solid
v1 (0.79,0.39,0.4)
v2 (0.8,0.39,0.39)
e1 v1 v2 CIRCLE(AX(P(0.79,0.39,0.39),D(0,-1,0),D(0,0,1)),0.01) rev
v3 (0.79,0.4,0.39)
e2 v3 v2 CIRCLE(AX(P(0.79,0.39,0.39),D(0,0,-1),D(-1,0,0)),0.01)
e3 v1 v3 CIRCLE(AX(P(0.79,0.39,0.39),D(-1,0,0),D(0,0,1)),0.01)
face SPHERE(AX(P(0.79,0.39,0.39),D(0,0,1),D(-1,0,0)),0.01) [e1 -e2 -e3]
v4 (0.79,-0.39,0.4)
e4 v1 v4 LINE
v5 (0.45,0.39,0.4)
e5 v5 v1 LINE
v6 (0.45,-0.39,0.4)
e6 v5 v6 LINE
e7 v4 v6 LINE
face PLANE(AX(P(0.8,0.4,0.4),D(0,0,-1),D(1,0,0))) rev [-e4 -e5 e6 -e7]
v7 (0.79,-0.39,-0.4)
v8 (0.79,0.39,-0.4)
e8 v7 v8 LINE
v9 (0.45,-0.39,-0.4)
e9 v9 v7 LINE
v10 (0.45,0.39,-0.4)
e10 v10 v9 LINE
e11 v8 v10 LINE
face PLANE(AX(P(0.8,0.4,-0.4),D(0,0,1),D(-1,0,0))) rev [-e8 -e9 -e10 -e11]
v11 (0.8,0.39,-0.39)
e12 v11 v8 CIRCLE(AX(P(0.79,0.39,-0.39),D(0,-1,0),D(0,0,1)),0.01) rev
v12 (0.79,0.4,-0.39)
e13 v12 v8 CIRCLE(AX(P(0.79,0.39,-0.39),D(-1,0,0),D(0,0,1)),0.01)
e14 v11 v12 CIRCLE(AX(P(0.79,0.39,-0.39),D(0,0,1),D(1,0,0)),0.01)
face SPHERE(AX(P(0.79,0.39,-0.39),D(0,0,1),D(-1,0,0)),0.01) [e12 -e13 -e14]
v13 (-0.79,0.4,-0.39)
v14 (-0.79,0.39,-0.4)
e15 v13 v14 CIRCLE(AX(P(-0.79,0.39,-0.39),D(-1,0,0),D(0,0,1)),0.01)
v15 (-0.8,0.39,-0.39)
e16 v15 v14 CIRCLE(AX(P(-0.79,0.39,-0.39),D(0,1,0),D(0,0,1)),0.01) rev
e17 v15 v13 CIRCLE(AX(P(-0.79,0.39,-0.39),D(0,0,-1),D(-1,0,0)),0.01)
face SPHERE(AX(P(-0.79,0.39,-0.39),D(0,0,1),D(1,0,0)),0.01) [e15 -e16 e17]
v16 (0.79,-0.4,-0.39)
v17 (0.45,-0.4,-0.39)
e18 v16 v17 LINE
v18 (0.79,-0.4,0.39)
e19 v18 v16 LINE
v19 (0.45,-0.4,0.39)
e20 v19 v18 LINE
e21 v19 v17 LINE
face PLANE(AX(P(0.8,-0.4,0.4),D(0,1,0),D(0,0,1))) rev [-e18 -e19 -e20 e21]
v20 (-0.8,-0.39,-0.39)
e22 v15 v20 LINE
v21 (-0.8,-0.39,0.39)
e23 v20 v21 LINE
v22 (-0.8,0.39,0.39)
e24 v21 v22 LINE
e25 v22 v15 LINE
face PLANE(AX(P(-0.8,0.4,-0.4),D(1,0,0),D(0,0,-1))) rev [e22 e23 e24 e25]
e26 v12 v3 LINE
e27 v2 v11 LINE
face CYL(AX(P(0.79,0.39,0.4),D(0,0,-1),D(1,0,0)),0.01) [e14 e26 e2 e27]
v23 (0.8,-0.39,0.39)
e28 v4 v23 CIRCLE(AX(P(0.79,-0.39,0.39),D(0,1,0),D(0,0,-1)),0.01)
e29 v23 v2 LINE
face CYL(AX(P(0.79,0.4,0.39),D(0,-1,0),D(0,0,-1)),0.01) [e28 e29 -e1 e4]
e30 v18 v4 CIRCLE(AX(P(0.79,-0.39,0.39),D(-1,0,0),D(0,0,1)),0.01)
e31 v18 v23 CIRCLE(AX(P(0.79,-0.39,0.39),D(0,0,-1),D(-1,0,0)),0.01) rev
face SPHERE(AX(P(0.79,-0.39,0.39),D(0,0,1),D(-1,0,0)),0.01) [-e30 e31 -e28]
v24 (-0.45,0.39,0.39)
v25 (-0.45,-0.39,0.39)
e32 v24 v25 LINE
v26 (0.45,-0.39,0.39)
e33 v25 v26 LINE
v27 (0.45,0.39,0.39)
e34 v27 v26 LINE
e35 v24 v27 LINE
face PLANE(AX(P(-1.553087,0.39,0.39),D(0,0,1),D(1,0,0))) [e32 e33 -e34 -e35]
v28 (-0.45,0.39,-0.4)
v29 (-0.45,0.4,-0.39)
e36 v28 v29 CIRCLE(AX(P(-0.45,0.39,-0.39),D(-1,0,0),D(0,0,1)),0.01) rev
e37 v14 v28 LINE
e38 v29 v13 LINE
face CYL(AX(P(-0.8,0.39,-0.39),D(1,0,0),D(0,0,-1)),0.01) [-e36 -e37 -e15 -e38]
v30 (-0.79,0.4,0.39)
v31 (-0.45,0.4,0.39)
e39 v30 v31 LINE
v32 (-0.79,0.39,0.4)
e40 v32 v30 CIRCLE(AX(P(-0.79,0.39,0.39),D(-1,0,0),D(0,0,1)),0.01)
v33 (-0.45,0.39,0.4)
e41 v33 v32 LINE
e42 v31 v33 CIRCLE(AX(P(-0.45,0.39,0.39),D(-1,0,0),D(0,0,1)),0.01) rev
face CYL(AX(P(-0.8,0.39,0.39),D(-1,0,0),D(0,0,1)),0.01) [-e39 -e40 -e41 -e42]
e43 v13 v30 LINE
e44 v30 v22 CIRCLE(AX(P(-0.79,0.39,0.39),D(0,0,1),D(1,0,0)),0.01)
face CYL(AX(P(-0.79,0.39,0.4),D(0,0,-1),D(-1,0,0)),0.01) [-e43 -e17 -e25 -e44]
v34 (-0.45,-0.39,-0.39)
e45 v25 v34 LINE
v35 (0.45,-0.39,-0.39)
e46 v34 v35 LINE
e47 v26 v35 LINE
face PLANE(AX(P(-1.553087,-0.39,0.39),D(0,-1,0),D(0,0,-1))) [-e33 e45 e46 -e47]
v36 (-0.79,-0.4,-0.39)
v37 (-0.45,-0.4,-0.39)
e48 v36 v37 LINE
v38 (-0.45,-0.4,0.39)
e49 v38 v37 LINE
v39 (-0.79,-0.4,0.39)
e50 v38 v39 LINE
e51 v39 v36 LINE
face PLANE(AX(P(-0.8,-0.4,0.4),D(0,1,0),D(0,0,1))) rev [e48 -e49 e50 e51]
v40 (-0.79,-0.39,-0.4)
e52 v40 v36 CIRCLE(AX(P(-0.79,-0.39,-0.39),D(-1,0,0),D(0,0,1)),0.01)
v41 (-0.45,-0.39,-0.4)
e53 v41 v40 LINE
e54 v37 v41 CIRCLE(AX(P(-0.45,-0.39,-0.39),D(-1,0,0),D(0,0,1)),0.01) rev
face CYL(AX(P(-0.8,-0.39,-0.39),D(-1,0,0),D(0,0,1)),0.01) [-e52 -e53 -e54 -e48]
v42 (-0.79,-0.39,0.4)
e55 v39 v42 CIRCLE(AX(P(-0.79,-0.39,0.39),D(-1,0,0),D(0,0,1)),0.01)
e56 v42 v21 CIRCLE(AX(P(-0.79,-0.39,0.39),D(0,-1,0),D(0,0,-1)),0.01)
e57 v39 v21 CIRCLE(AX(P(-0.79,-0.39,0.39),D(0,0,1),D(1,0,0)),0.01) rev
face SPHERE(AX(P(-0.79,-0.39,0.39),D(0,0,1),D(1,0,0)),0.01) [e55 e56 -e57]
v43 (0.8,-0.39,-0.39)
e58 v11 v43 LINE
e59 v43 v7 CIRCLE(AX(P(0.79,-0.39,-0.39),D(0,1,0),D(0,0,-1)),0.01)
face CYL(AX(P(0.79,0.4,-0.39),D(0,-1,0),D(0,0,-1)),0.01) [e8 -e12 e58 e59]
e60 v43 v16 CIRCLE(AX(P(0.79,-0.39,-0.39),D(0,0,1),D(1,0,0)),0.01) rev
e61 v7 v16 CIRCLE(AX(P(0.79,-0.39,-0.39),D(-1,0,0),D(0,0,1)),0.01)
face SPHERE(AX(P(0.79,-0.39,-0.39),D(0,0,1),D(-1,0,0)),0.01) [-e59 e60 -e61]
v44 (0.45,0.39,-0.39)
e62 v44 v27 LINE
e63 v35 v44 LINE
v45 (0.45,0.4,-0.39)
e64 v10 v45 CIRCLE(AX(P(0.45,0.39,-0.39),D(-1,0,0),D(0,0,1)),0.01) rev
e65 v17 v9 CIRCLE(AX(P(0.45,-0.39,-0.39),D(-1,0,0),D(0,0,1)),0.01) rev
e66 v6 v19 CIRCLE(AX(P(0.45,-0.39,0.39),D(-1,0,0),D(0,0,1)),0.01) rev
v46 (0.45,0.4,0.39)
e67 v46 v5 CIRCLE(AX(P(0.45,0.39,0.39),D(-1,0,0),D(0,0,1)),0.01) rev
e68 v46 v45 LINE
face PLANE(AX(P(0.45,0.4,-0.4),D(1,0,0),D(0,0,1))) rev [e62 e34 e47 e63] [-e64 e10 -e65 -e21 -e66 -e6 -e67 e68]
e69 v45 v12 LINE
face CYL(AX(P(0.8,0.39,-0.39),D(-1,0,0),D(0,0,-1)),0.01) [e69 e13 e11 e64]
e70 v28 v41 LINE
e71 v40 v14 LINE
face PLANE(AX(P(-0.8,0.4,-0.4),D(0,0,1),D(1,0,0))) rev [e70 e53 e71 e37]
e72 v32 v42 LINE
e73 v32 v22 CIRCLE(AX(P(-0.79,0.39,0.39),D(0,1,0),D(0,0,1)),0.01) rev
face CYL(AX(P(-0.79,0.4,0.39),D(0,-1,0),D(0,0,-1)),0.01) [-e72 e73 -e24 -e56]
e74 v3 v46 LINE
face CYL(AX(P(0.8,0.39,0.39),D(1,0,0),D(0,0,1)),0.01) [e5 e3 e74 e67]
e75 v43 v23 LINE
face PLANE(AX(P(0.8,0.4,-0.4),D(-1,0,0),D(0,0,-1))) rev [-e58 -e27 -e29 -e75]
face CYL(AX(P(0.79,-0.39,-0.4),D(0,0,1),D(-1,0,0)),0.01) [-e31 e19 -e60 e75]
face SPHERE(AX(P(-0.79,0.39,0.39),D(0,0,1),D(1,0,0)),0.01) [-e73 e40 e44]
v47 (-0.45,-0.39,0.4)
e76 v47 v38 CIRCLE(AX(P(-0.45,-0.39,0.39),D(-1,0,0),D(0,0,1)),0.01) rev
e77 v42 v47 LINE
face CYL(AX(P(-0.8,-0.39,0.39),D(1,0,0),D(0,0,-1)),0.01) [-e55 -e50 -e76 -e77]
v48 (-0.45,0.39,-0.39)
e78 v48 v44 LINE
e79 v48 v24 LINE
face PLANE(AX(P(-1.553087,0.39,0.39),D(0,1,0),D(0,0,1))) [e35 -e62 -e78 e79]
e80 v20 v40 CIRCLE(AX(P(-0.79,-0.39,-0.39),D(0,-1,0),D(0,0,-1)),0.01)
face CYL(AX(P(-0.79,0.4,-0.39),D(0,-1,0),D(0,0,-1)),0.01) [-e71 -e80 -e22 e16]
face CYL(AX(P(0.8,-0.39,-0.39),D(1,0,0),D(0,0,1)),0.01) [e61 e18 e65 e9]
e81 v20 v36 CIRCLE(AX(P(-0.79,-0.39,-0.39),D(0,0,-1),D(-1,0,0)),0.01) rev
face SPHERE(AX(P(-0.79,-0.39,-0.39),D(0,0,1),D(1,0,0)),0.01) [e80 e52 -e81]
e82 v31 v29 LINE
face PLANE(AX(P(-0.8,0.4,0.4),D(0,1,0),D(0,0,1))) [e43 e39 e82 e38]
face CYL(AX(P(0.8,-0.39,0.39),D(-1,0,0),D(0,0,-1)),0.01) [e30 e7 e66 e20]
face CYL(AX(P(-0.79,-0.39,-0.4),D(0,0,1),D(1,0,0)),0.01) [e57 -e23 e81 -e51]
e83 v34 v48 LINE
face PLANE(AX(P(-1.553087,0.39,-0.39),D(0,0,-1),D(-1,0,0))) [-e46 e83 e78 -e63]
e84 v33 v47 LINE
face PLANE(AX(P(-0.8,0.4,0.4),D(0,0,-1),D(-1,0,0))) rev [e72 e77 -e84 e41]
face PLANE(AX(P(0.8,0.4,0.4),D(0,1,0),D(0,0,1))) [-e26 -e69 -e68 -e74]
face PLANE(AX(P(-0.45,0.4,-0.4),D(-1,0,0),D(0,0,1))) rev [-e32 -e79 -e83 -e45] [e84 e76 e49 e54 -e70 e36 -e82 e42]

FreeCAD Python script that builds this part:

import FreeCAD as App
import Part
import Sketcher
Q = App.Units.Quantity


def edges_at(feature, points):
    """Names of the edges that pass closest to the given points."""
    edges = feature.Shape.Edges
    near = lambda p: min(range(len(edges)), key=lambda i: edges[i].distToShape(Part.Vertex(*p))[0])
    return sorted({f"Edge{near(p) + 1}" for p in points})


def add_polygon(sketch, points):
    """Adds a closed chain of lines whose ends are joined by coincident constraints."""
    first, n = sketch.GeometryCount, len(points)
    for a, b in zip(points, points[1:] + points[:1]):
        sketch.addGeometry(Part.LineSegment(App.Vector(*a, 0), App.Vector(*b, 0)), False)
    for i in range(n):
        sketch.addConstraint(Sketcher.Constraint("Coincident", first + i, 2, first + (i + 1) % n, 1))

doc = App.newDocument("Part")
body = doc.addObject("PartDesign::Body", "Body")

# Sketch on XZ plane
sketch1 = body.newObject("Sketcher::SketchObject", "Sketch")
sketch1.AttachmentSupport = (doc.getObject("XZ_Plane"), [""])
sketch1.MapMode = "FlatFace"
add_polygon(sketch1, [(-0.8, -0.4), (-0.8, 0.4), (-0.45, 0.4), (-0.45, -0.4)])  # lines 0-3
sketch1.addConstraint(Sketcher.Constraint("Vertical", 0))
sketch1.addConstraint(Sketcher.Constraint("Horizontal", 1))
sketch1.addConstraint(Sketcher.Constraint("Vertical", 2))
sketch1.addConstraint(Sketcher.Constraint("Horizontal", 3))
sketch1.addConstraint(Sketcher.Constraint("DistanceY", 0, 1, 0, 2, Q("0.8 mm")))
sketch1.addConstraint(Sketcher.Constraint("DistanceX", 1, 1, 1, 2, Q("0.35 mm")))
sketch1.addConstraint(Sketcher.Constraint("DistanceX", 0, 2, -1, 1, Q("0.8 mm")))
sketch1.addConstraint(Sketcher.Constraint("DistanceY", -1, 1, 0, 2, Q("0.4 mm")))
pad1 = body.newObject("PartDesign::Pad", "Pad")
pad1.Profile = sketch1
pad1.Length = 0.8
pad1.Midplane = True
doc.recompute()

fillet = body.newObject("PartDesign::Fillet", "Fillet")
fillet.Base = (pad1, edges_at(pad1, [
    (-0.625, 0.4, -0.4),
    (-0.8, 0.4, 0),
    (-0.625, -0.4, -0.4),
    (-0.625, -0.4, 0.4),
    (-0.8, -0.4, 0),
    (-0.625, 0.4, 0.4),
    (-0.8, 0, -0.4),
    (-0.8, 0, 0.4),
]))
fillet.Radius = 0.01

# Sketch on YZ plane
sketch2 = body.newObject("Sketcher::SketchObject", "Sketch001")
sketch2.AttachmentSupport = (doc.getObject("YZ_Plane"), [""])
sketch2.MapMode = "FlatFace"
add_polygon(sketch2, [(0.4, 0.4), (-0.4, 0.4), (-0.4, -0.4), (0.4, -0.4)])  # lines 0-3
sketch2.addConstraint(Sketcher.Constraint("Horizontal", 0))
sketch2.addConstraint(Sketcher.Constraint("Vertical", 1))
sketch2.addConstraint(Sketcher.Constraint("Horizontal", 2))
sketch2.addConstraint(Sketcher.Constraint("Vertical", 3))
sketch2.addConstraint(Sketcher.Constraint("Symmetric", 0, 2, 2, 2, -1, 1))
sketch2.addConstraint(Sketcher.Constraint("Equal", 2, 1))
sketch2.addConstraint(Sketcher.Constraint("DistanceX", 0, 2, 0, 1, Q("0.78 mm")))
pad2 = body.newObject("PartDesign::Pad", "Pad001")
pad2.Profile = sketch2
pad2.Length = 0.45
pad2.Reversed = True
doc.recompute()

mirrored = body.newObject("PartDesign::Mirrored", "Mirrored")
mirrored.Originals = [pad1, pad2]
mirrored.MirrorPlane = (doc.getObject("YZ_Plane"), [""])
body.Tip = mirrored
doc.recompute()

fillet2 = body.newObject("PartDesign::Fillet", "Fillet001")
fillet2.Base = (mirrored, edges_at(mirrored, [
    (0.625, 0.4, -0.4),
    (0.8, 0.4, 0),
    (0.625, -0.4, -0.4),
    (0.625, -0.4, 0.4),
    (0.8, -0.4, 0),
    (0.625, 0.4, 0.4),
    (0.8, 0, -0.4),
    (0.8, 0, 0.4),
]))
fillet2.Radius = 0.01

doc.recompute()
